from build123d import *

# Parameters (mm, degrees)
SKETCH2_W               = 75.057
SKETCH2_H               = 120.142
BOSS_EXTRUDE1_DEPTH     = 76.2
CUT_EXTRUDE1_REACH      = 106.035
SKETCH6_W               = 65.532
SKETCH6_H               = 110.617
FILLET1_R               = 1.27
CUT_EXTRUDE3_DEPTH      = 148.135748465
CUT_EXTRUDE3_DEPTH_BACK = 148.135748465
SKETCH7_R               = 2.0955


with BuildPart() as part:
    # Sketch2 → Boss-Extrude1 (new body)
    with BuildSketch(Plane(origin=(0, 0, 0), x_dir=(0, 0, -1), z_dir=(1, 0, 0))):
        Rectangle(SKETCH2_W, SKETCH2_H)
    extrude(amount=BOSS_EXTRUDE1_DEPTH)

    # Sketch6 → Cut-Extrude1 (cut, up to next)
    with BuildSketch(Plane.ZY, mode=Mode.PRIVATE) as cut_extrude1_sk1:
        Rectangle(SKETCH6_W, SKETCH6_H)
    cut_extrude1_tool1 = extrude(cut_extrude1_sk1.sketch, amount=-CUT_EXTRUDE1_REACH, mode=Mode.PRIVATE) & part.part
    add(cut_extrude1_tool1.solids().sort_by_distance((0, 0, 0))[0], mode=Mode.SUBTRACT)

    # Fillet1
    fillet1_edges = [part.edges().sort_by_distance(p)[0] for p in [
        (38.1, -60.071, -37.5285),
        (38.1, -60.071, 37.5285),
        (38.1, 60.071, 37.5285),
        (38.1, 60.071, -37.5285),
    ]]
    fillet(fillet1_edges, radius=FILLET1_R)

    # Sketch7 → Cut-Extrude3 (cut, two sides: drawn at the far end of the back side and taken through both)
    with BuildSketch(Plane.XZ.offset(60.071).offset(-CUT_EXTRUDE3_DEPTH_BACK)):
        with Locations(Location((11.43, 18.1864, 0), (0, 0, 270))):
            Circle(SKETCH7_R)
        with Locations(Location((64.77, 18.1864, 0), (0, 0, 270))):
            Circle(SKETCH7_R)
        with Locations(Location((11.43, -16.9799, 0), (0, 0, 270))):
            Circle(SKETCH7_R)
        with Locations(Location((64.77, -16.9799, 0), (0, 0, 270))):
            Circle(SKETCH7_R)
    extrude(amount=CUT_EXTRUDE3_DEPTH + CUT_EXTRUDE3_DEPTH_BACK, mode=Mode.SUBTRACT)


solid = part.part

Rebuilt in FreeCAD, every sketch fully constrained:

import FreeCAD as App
import Part
import Sketcher

V = App.Vector
Q = App.Units.Quantity


def edges_at(feature, points):
    """Names of the edges that pass closest to the given points."""
    edges = feature.Shape.Edges
    near = lambda p: min(range(len(edges)), key=lambda i: edges[i].distToShape(Part.Vertex(*p))[0])
    return sorted({f"Edge{near(p) + 1}" for p in points})

doc = App.newDocument("Part")
params = doc.addObject("Spreadsheet::Sheet", "Params")
for row, (alias, value) in enumerate([
    ("sketch1_width", "4.73 in"),
    ("sketch1_height", "2.955 in"),
    ("pad1_length", "3 in"),
    ("sketch2_height", "2.58 in"),
    ("sketch2_width", "4.355 in"),
    ("fillet_radius", "0.05 in"),
    ("sketch3_diameter", "0.165 in"),
], start=1):
    params.set(f"A{row}", alias)
    params.set(f"B{row}", "=" + value)
    params.setAlias(f"B{row}", alias)

body = doc.addObject("PartDesign::Body", "Body")

sketch1 = body.newObject("Sketcher::SketchObject", "Sketch")
sketch1.AttachmentSupport = (doc.getObject("YZ_Plane"), [""])
sketch1.MapMode = "FlatFace"
sketch1.addGeometry(Part.LineSegment(V(60, 38, 0), V(-60, 38, 0)), False)
sketch1.addGeometry(Part.LineSegment(V(-60, 38, 0), V(-60, -38, 0)), False)
sketch1.addGeometry(Part.LineSegment(V(-60, -38, 0), V(60, -38, 0)), False)
sketch1.addGeometry(Part.LineSegment(V(60, -38, 0), V(60, 38, 0)), False)
sketch1.addConstraint(Sketcher.Constraint("Coincident", 0, 2, 1, 1))
sketch1.addConstraint(Sketcher.Constraint("Coincident", 1, 2, 2, 1))
sketch1.addConstraint(Sketcher.Constraint("Coincident", 2, 2, 3, 1))
sketch1.addConstraint(Sketcher.Constraint("Coincident", 3, 2, 0, 1))
sketch1.addConstraint(Sketcher.Constraint("Horizontal", 0))
sketch1.addConstraint(Sketcher.Constraint("Vertical", 1))
sketch1.addConstraint(Sketcher.Constraint("Horizontal", 2))
sketch1.addConstraint(Sketcher.Constraint("Vertical", 3))
sketch1.addConstraint(Sketcher.Constraint("Symmetric", 0, 2, 2, 2, -1, 1))
sketch1.addConstraint(Sketcher.Constraint("DistanceX", 0, 2, 0, 1, Q("4.73 in")))
sketch1.addConstraint(Sketcher.Constraint("DistanceY", 1, 2, 1, 1, Q("2.955 in")))
sketch1.setExpression("Constraints[9]", "Params.sketch1_width")
sketch1.setExpression("Constraints[10]", "Params.sketch1_height")
pad1 = body.newObject("PartDesign::Pad", "Pad")
pad1.Profile = sketch1
pad1.setExpression("Length", "Params.pad1_length")

sketch2 = body.newObject("Sketcher::SketchObject", "Sketch001")
sketch2.AttachmentSupport = (doc.getObject("YZ_Plane"), [""])
sketch2.MapMode = "FlatFace"
sketch2.addGeometry(Part.LineSegment(V(55, -33, 0), V(-55, -33, 0)), False)
sketch2.addGeometry(Part.LineSegment(V(-55, -33, 0), V(-55, 33, 0)), False)
sketch2.addGeometry(Part.LineSegment(V(-55, 33, 0), V(55, 33, 0)), False)
sketch2.addGeometry(Part.LineSegment(V(55, 33, 0), V(55, -33, 0)), False)
sketch2.addConstraint(Sketcher.Constraint("Coincident", 0, 2, 1, 1))
sketch2.addConstraint(Sketcher.Constraint("Coincident", 1, 2, 2, 1))
sketch2.addConstraint(Sketcher.Constraint("Coincident", 2, 2, 3, 1))
sketch2.addConstraint(Sketcher.Constraint("Coincident", 3, 2, 0, 1))
sketch2.addConstraint(Sketcher.Constraint("Horizontal", 0))
sketch2.addConstraint(Sketcher.Constraint("Vertical", 1))
sketch2.addConstraint(Sketcher.Constraint("Horizontal", 2))
sketch2.addConstraint(Sketcher.Constraint("Vertical", 3))
sketch2.addConstraint(Sketcher.Constraint("Symmetric", 0, 2, 2, 2, -1, 1))
sketch2.addConstraint(Sketcher.Constraint("DistanceY", 1, 1, 1, 2, Q("2.58 in")))
sketch2.addConstraint(Sketcher.Constraint("DistanceX", 0, 2, 0, 1, Q("4.355 in")))
sketch2.setExpression("Constraints[9]", "Params.sketch2_height")
sketch2.setExpression("Constraints[10]", "Params.sketch2_width")
pocket1 = body.newObject("PartDesign::Pocket", "Pocket")
pocket1.Profile = sketch2
pocket1.Type = "UpToFirst"
pocket1.Reversed = True
doc.recompute()

fillet = body.newObject("PartDesign::Fillet", "Fillet")
fillet.Base = (pocket1, edges_at(pocket1, [
    (38.1, -60.071, -37.529),
    (38.1, -60.071, 37.529),
    (38.1, 60.071, 37.529),
    (38.1, 60.071, -37.529),
]))
fillet.setExpression("Radius", "Params.fillet_radius")

sketch3 = body.newObject("Sketcher::SketchObject", "Sketch002")
sketch3.AttachmentSupport = (doc.getObject("XZ_Plane"), [""])
sketch3.MapMode = "FlatFace"
sketch3.AttachmentOffset = App.Placement(V(0, 0, 2.365 * 25.4), App.Rotation())
sketch3.addGeometry(Part.Circle(V(11.4, 18.2, 0), V(0, 0, 1), 2.1), False)
sketch3.addGeometry(Part.Circle(V(64.8, 18.2, 0), V(0, 0, 1), 2.1), False)
sketch3.addGeometry(Part.Circle(V(11.4, -17, 0), V(0, 0, 1), 2.1), False)
sketch3.addGeometry(Part.Circle(V(64.8, -17, 0), V(0, 0, 1), 2.1), False)
sketch3.addConstraint(Sketcher.Constraint("Equal", 0, 1))
sketch3.addConstraint(Sketcher.Constraint("Equal", 1, 2))
sketch3.addConstraint(Sketcher.Constraint("Equal", 2, 3))
sketch3.addConstraint(Sketcher.Constraint("Horizontal", 0, 3, 1, 3))
sketch3.addConstraint(Sketcher.Constraint("Horizontal", 2, 3, 3, 3))
sketch3.addConstraint(Sketcher.Constraint("Vertical", 0, 3, 2, 3))
sketch3.addConstraint(Sketcher.Constraint("Vertical", 1, 3, 3, 3))
sketch3.addConstraint(Sketcher.Constraint("Diameter", 0, Q("0.165 in")))
sketch3.addConstraint(Sketcher.Constraint("DistanceX", 0, 3, 1, 3, Q("2.1 in")))
sketch3.addConstraint(Sketcher.Constraint("DistanceX", -1, 1, 0, 3, Q("0.45 in")))
sketch3.addConstraint(Sketcher.Constraint("DistanceY", -1, 1, 0, 3, Q("0.716 in")))
sketch3.addConstraint(Sketcher.Constraint("DistanceY", 2, 3, -1, 1, Q("0.6685 in")))
sketch3.setExpression("Constraints[7]", "Params.sketch3_diameter")
pocket2 = body.newObject("PartDesign::Pocket", "Pocket001")
pocket2.Profile = sketch3
pocket2.Type = "ThroughAll"
pocket2.Midplane = True

doc.recompute()
